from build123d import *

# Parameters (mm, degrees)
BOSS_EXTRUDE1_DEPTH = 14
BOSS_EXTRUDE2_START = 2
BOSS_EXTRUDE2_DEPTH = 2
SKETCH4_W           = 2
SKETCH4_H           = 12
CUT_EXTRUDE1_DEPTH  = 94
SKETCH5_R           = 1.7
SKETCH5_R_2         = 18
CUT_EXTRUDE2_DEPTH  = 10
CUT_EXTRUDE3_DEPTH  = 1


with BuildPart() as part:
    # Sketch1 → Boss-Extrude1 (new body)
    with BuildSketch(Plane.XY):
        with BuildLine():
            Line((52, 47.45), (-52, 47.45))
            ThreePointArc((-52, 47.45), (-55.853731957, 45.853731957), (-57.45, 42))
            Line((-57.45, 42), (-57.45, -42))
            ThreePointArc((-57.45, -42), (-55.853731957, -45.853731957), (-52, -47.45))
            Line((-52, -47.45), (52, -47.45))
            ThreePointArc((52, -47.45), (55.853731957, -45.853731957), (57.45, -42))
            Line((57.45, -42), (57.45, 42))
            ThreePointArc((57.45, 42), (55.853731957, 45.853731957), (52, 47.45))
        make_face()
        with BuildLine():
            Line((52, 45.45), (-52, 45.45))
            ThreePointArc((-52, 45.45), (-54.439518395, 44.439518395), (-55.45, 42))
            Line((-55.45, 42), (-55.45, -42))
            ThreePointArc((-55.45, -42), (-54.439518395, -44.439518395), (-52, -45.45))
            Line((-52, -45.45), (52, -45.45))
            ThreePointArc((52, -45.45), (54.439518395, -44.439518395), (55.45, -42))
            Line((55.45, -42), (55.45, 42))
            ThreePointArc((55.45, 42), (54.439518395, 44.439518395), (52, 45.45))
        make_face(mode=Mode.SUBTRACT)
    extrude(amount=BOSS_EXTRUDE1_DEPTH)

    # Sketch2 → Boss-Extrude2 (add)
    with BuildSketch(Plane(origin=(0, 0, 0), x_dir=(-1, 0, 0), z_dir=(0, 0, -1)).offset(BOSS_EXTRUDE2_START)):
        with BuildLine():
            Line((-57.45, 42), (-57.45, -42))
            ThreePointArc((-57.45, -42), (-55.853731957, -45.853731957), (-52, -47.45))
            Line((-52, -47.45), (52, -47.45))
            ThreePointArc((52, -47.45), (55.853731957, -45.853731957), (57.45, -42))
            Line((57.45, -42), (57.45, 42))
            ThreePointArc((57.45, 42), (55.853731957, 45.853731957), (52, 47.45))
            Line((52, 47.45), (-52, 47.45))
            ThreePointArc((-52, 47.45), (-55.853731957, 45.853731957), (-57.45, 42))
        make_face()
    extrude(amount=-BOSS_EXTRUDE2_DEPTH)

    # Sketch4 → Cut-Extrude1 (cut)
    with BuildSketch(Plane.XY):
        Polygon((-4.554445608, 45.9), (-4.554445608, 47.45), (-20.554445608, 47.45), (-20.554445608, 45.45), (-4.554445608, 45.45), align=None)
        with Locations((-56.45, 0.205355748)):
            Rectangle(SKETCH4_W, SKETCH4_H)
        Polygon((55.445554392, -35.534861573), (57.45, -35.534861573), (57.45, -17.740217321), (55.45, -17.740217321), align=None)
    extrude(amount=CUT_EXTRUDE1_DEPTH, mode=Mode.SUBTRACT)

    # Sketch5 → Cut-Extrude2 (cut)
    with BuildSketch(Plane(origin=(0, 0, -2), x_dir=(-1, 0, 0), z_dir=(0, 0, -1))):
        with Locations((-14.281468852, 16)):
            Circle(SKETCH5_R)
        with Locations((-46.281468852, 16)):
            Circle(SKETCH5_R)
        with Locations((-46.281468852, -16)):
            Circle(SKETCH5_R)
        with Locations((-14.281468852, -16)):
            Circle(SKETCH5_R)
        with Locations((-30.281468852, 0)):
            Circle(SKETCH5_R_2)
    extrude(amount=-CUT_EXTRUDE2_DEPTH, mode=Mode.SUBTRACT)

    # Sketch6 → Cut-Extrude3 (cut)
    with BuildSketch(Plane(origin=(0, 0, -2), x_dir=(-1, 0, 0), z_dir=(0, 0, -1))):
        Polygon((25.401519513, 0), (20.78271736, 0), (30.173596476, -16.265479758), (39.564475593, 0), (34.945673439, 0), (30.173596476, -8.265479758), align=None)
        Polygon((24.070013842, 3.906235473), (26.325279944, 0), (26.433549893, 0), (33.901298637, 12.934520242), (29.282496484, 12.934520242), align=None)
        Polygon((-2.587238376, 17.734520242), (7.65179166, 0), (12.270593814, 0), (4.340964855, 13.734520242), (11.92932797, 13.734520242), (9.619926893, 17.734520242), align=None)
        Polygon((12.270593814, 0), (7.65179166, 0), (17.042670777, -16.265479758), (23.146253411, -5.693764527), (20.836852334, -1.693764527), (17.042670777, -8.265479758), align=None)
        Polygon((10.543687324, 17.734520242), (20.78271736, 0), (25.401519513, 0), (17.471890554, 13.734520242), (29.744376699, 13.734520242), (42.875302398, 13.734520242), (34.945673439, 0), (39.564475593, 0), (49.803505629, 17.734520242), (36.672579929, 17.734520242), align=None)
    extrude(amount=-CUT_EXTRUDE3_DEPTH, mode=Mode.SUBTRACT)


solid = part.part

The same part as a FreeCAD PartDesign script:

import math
import FreeCAD as App
import Part
import Sketcher
from FreeCAD import Vector
Q = App.Units.Quantity


def add_polygon(sketch, points):
    """Adds a closed chain of lines whose ends are joined by coincident constraints."""
    first, n = sketch.GeometryCount, len(points)
    for a, b in zip(points, points[1:] + points[:1]):
        sketch.addGeometry(Part.LineSegment(App.Vector(*a, 0), App.Vector(*b, 0)), False)
    for i in range(n):
        sketch.addConstraint(Sketcher.Constraint("Coincident", first + i, 2, first + (i + 1) % n, 1))

doc = App.newDocument("Part")
body = doc.addObject("PartDesign::Body", "Body")

sketch1 = body.newObject("Sketcher::SketchObject", "Sketch")
sketch1.AttachmentSupport = (doc.getObject("XY_Plane"), [""])
sketch1.MapMode = "FlatFace"
sketch1.addGeometry(Part.LineSegment(Vector(52, 47.45, 0), Vector(-52, 47.45, 0)), False)
sketch1.addGeometry(Part.ArcOfCircle(Part.Circle(Vector(-52, 42, 0), Vector(0, 0, 1), 5.45), math.radians(90), math.radians(180)), False)
sketch1.addGeometry(Part.LineSegment(Vector(-57.45, 42, 0), Vector(-57.45, -42, 0)), False)
sketch1.addGeometry(Part.ArcOfCircle(Part.Circle(Vector(-52, -42, 0), Vector(0, 0, 1), 5.45), math.radians(-180), math.radians(-90)), False)
sketch1.addGeometry(Part.LineSegment(Vector(-52, -47.45, 0), Vector(52, -47.45, 0)), False)
sketch1.addGeometry(Part.ArcOfCircle(Part.Circle(Vector(52, -42, 0), Vector(0, 0, 1), 5.45), math.radians(-90), math.radians(0)), False)
sketch1.addGeometry(Part.LineSegment(Vector(57.45, -42, 0), Vector(57.45, 42, 0)), False)
sketch1.addGeometry(Part.ArcOfCircle(Part.Circle(Vector(52, 42, 0), Vector(0, 0, 1), 5.45), math.radians(0), math.radians(90)), False)
sketch1.addGeometry(Part.LineSegment(Vector(-52, 45.45, 0), Vector(52, 45.45, 0)), False)
sketch1.addGeometry(Part.ArcOfCircle(Part.Circle(Vector(52, 42, 0), Vector(0, 0, 1), 3.45), math.radians(0), math.radians(90)), False)
sketch1.addGeometry(Part.LineSegment(Vector(55.45, 42, 0), Vector(55.45, -42, 0)), False)
sketch1.addGeometry(Part.ArcOfCircle(Part.Circle(Vector(52, -42, 0), Vector(0, 0, 1), 3.45), math.radians(-90), math.radians(0)), False)
sketch1.addGeometry(Part.LineSegment(Vector(52, -45.45, 0), Vector(-52, -45.45, 0)), False)
sketch1.addGeometry(Part.ArcOfCircle(Part.Circle(Vector(-52, -42, 0), Vector(0, 0, 1), 3.45), math.radians(180), math.radians(270)), False)
sketch1.addGeometry(Part.LineSegment(Vector(-55.45, -42, 0), Vector(-55.45, 42, 0)), False)
sketch1.addGeometry(Part.ArcOfCircle(Part.Circle(Vector(-52, 42, 0), Vector(0, 0, 1), 3.45), math.radians(90), math.radians(180)), False)
sketch1.addConstraint(Sketcher.Constraint("Tangent", 0, 2, 1, 1))
sketch1.addConstraint(Sketcher.Constraint("Tangent", 1, 2, 2, 1))
sketch1.addConstraint(Sketcher.Constraint("Tangent", 2, 2, 3, 1))
sketch1.addConstraint(Sketcher.Constraint("Tangent", 3, 2, 4, 1))
sketch1.addConstraint(Sketcher.Constraint("Tangent", 4, 2, 5, 1))
sketch1.addConstraint(Sketcher.Constraint("Tangent", 5, 2, 6, 1))
sketch1.addConstraint(Sketcher.Constraint("Tangent", 6, 2, 7, 1))
sketch1.addConstraint(Sketcher.Constraint("Tangent", 7, 2, 0, 1))
sketch1.addConstraint(Sketcher.Constraint("Tangent", 8, 2, 9, 2))
sketch1.addConstraint(Sketcher.Constraint("Tangent", 9, 1, 10, 1))
sketch1.addConstraint(Sketcher.Constraint("Tangent", 10, 2, 11, 2))
sketch1.addConstraint(Sketcher.Constraint("Tangent", 11, 1, 12, 1))
sketch1.addConstraint(Sketcher.Constraint("Tangent", 12, 2, 13, 2))
sketch1.addConstraint(Sketcher.Constraint("Tangent", 13, 1, 14, 1))
sketch1.addConstraint(Sketcher.Constraint("Tangent", 14, 2, 15, 2))
sketch1.addConstraint(Sketcher.Constraint("Tangent", 15, 1, 8, 1))
sketch1.addConstraint(Sketcher.Constraint("Horizontal", 0))
sketch1.addConstraint(Sketcher.Constraint("Vertical", 2))
sketch1.addConstraint(Sketcher.Constraint("Horizontal", 4))
sketch1.addConstraint(Sketcher.Constraint("Vertical", 6))
sketch1.addConstraint(Sketcher.Constraint("Horizontal", 8))
sketch1.addConstraint(Sketcher.Constraint("Vertical", 10))
sketch1.addConstraint(Sketcher.Constraint("Horizontal", 12))
sketch1.addConstraint(Sketcher.Constraint("Vertical", 14))
sketch1.addConstraint(Sketcher.Constraint("Coincident", 9, 3, 7, 3))
sketch1.addConstraint(Sketcher.Constraint("Coincident", 11, 3, 5, 3))
sketch1.addConstraint(Sketcher.Constraint("Coincident", 13, 3, 3, 3))
sketch1.addConstraint(Sketcher.Constraint("Equal", 1, 3))
sketch1.addConstraint(Sketcher.Constraint("Equal", 3, 5))
sketch1.addConstraint(Sketcher.Constraint("Equal", 5, 7))
sketch1.addConstraint(Sketcher.Constraint("Equal", 13, 15))
sketch1.addConstraint(Sketcher.Constraint("Symmetric", 1, 3, 5, 3, -1, 1))
sketch1.addConstraint(Sketcher.Constraint("DistanceX", 0, 2, 0, 1, Q("104 mm")))
sketch1.addConstraint(Sketcher.Constraint("DistanceY", 2, 2, 2, 1, Q("84 mm")))
sketch1.addConstraint(Sketcher.Constraint("Radius", 1, Q("5.45 mm")))
sketch1.addConstraint(Sketcher.Constraint("Radius", 9, Q("3.45 mm")))
pad1 = body.newObject("PartDesign::Pad", "Pad")
pad1.Profile = sketch1
pad1.Length = 14

sketch2 = body.newObject("Sketcher::SketchObject", "Sketch001")
sketch2.AttachmentSupport = (doc.getObject("XY_Plane"), [""])
sketch2.MapMode = "FlatFace"
sketch2.AttachmentOffset = App.Placement(Vector(0, 0, -2), App.Rotation())
sketch2.addGeometry(Part.LineSegment(Vector(57.45, 42, 0), Vector(57.45, -42, 0)), False)
sketch2.addGeometry(Part.ArcOfCircle(Part.Circle(Vector(52, -42, 0), Vector(0, 0, 1), 5.45), math.radians(-90), math.radians(0)), False)
sketch2.addGeometry(Part.LineSegment(Vector(52, -47.45, 0), Vector(-52, -47.45, 0)), False)
sketch2.addGeometry(Part.ArcOfCircle(Part.Circle(Vector(-52, -42, 0), Vector(0, 0, 1), 5.45), math.radians(-180), math.radians(-90)), False)
sketch2.addGeometry(Part.LineSegment(Vector(-57.45, -42, 0), Vector(-57.45, 42, 0)), False)
sketch2.addGeometry(Part.ArcOfCircle(Part.Circle(Vector(-52, 42, 0), Vector(0, 0, 1), 5.45), math.radians(90), math.radians(180)), False)
sketch2.addGeometry(Part.LineSegment(Vector(-52, 47.45, 0), Vector(52, 47.45, 0)), False)
sketch2.addGeometry(Part.ArcOfCircle(Part.Circle(Vector(52, 42, 0), Vector(0, 0, 1), 5.45), math.radians(0), math.radians(90)), False)
sketch2.addConstraint(Sketcher.Constraint("Tangent", 0, 2, 1, 2))
sketch2.addConstraint(Sketcher.Constraint("Tangent", 1, 1, 2, 1))
sketch2.addConstraint(Sketcher.Constraint("Tangent", 2, 2, 3, 2))
sketch2.addConstraint(Sketcher.Constraint("Tangent", 3, 1, 4, 1))
sketch2.addConstraint(Sketcher.Constraint("Tangent", 4, 2, 5, 2))
sketch2.addConstraint(Sketcher.Constraint("Tangent", 5, 1, 6, 1))
sketch2.addConstraint(Sketcher.Constraint("Tangent", 6, 2, 7, 2))
sketch2.addConstraint(Sketcher.Constraint("Tangent", 7, 1, 0, 1))
sketch2.addConstraint(Sketcher.Constraint("Vertical", 0))
sketch2.addConstraint(Sketcher.Constraint("Horizontal", 2))
sketch2.addConstraint(Sketcher.Constraint("Vertical", 4))
sketch2.addConstraint(Sketcher.Constraint("Horizontal", 6))
sketch2.addConstraint(Sketcher.Constraint("Equal", 1, 3))
sketch2.addConstraint(Sketcher.Constraint("Equal", 3, 5))
sketch2.addConstraint(Sketcher.Constraint("Equal", 5, 7))
sketch2.addConstraint(Sketcher.Constraint("Symmetric", 1, 3, 5, 3, -1, 1))
sketch2.addConstraint(Sketcher.Constraint("DistanceX", 2, 2, 2, 1, Q("104 mm")))
sketch2.addConstraint(Sketcher.Constraint("DistanceY", 0, 2, 0, 1, Q("84 mm")))
sketch2.addConstraint(Sketcher.Constraint("Radius", 1, Q("5.45 mm")))
pad2 = body.newObject("PartDesign::Pad", "Pad001")
pad2.Profile = sketch2
pad2.Length = 2

sketch3 = body.newObject("Sketcher::SketchObject", "Sketch002")
sketch3.AttachmentSupport = (doc.getObject("XY_Plane"), [""])
sketch3.MapMode = "FlatFace"
add_polygon(sketch3, [(-4.554446, 47.45), (-20.554446, 47.45), (-20.554446, 45.45), (-4.554446, 45.45)])
add_polygon(sketch3, [(-57.45, 6.205356), (-57.45, -5.794644), (-55.45, -5.794644), (-55.45, 6.205356)])
add_polygon(sketch3, [(55.445554, -35.534862), (57.45, -35.534862), (57.45, -17.740217), (55.45, -17.740217)])
sketch3.addConstraint(Sketcher.Constraint("Horizontal", 0))
sketch3.addConstraint(Sketcher.Constraint("Vertical", 1))
sketch3.addConstraint(Sketcher.Constraint("Horizontal", 2))
sketch3.addConstraint(Sketcher.Constraint("Vertical", 3))
sketch3.addConstraint(Sketcher.Constraint("Vertical", 4))
sketch3.addConstraint(Sketcher.Constraint("Horizontal", 5))
sketch3.addConstraint(Sketcher.Constraint("Vertical", 6))
sketch3.addConstraint(Sketcher.Constraint("Horizontal", 7))
sketch3.addConstraint(Sketcher.Constraint("Horizontal", 8))
sketch3.addConstraint(Sketcher.Constraint("Vertical", 9))
sketch3.addConstraint(Sketcher.Constraint("Horizontal", 10))
sketch3.addConstraint(Sketcher.Constraint("Equal", 7, 10))
sketch3.addConstraint(Sketcher.Constraint("Equal", 10, 1))
sketch3.addConstraint(Sketcher.Constraint("DistanceX", 0, 2, 0, 1, Q("16 mm")))
sketch3.addConstraint(Sketcher.Constraint("DistanceX", 5, 1, 5, 2, Q("2 mm")))
sketch3.addConstraint(Sketcher.Constraint("DistanceY", 4, 2, 4, 1, Q("12 mm")))
sketch3.addConstraint(Sketcher.Constraint("DistanceX", 2, 2, 11, 2, Q("60 mm")))
sketch3.addConstraint(Sketcher.Constraint("DistanceX", 5, 2, 8, 2, Q("112.9 mm")))
sketch3.addConstraint(Sketcher.Constraint("DistanceY", -1, 1, 0, 2, Q("47.45 mm")))
sketch3.addConstraint(Sketcher.Constraint("DistanceX", 4, 2, -1, 1, Q("57.45 mm")))
sketch3.addConstraint(Sketcher.Constraint("DistanceX", 8, 1, 8, 2, Q("2.004446 mm")))
sketch3.addConstraint(Sketcher.Constraint("DistanceY", 9, 1, 9, 2, Q("17.794644 mm")))
sketch3.addConstraint(Sketcher.Constraint("DistanceY", 8, 2, -1, 1, Q("35.534862 mm")))
sketch3.addConstraint(Sketcher.Constraint("DistanceY", 4, 2, -1, 1, Q("5.794644 mm")))
pocket1 = body.newObject("PartDesign::Pocket", "Pocket")
pocket1.Profile = sketch3
pocket1.Length = 94
pocket1.Reversed = True

sketch4 = body.newObject("Sketcher::SketchObject", "Sketch003")
sketch4.AttachmentSupport = (doc.getObject("XY_Plane"), [""])
sketch4.MapMode = "FlatFace"
sketch4.AttachmentOffset = App.Placement(Vector(0, 0, -2), App.Rotation())
sketch4.addGeometry(Part.Circle(Vector(14.281469, 16, 0), Vector(0, 0, 1), 1.7), False)
sketch4.addGeometry(Part.Circle(Vector(46.281469, 16, 0), Vector(0, 0, 1), 1.7), False)
sketch4.addGeometry(Part.Circle(Vector(46.281469, -16, 0), Vector(0, 0, 1), 1.7), False)
sketch4.addGeometry(Part.Circle(Vector(14.281469, -16, 0), Vector(0, 0, 1), 1.7), False)
sketch4.addGeometry(Part.Circle(Vector(30.281469, 0, 0), Vector(0, 0, 1), 18), False)
sketch4.addConstraint(Sketcher.Constraint("Equal", 0, 1))
sketch4.addConstraint(Sketcher.Constraint("Equal", 1, 2))
sketch4.addConstraint(Sketcher.Constraint("Equal", 2, 3))
sketch4.addConstraint(Sketcher.Constraint("Symmetric", 1, 3, 2, 3, -1))
sketch4.addConstraint(Sketcher.Constraint("Symmetric", 0, 3, 3, 3, -1))
sketch4.addConstraint(Sketcher.Constraint("PointOnObject", 4, 3, -1))
sketch4.addConstraint(Sketcher.Constraint("Horizontal", 0, 3, 1, 3))
sketch4.addConstraint(Sketcher.Constraint("Diameter", 4, Q("36 mm")))
sketch4.addConstraint(Sketcher.Constraint("Diameter", 0, Q("3.4 mm")))
sketch4.addConstraint(Sketcher.Constraint("DistanceY", -1, 1, 0, 3, Q("16 mm")))
sketch4.addConstraint(Sketcher.Constraint("DistanceX", 0, 3, 1, 3, Q("32 mm")))
sketch4.addConstraint(Sketcher.Constraint("DistanceX", 0, 3, 4, 3, Q("16 mm")))
sketch4.addConstraint(Sketcher.Constraint("DistanceX", -1, 1, 0, 3, Q("14.281469 mm")))
pocket2 = body.newObject("PartDesign::Pocket", "Pocket001")
pocket2.Profile = sketch4
pocket2.Length = 10
pocket2.Reversed = True

sketch5 = body.newObject("Sketcher::SketchObject", "Sketch004")
sketch5.AttachmentSupport = (doc.getObject("XY_Plane"), [""])
sketch5.MapMode = "FlatFace"
sketch5.AttachmentOffset = App.Placement(Vector(0, 0, -2), App.Rotation())
add_polygon(sketch5, [(-20.782717, 0), (-30.173596, -16.26548), (-39.564476, 0), (-49.803506, 17.73452), (-10.543687, 17.73452)])
add_polygon(sketch5, [(-34.945673, 0), (-30.173596, -8.26548), (-25.40152, 0), (-17.471891, 13.73452), (-42.875302, 13.73452)])
add_polygon(sketch5, [(-24.070014, 3.906235), (-26.32528, 0), (-26.43355, 0), (-33.901299, 12.93452), (-29.282496, 12.93452)])
add_polygon(sketch5, [(2.587238, 17.73452), (-7.651792, 0), (-17.042671, -16.26548), (-23.146253, -5.693765), (-20.836852, -1.693765), (-17.042671, -8.26548), (-12.270594, 0), (-4.340965, 13.73452), (-11.929328, 13.73452), (-9.619927, 17.73452)])
sketch5.addConstraint(Sketcher.Constraint("Horizontal", 3))
sketch5.addConstraint(Sketcher.Constraint("Horizontal", 8))
sketch5.addConstraint(Sketcher.Constraint("Horizontal", 11))
sketch5.addConstraint(Sketcher.Constraint("Horizontal", 13))
sketch5.addConstraint(Sketcher.Constraint("Horizontal", 22))
sketch5.addConstraint(Sketcher.Constraint("Horizontal", 24))
sketch5.addConstraint(Sketcher.Constraint("PointOnObject", 1, 2, -1))
sketch5.addConstraint(Sketcher.Constraint("PointOnObject", 4, 2, -1))
sketch5.addConstraint(Sketcher.Constraint("PointOnObject", 6, 2, -1))
sketch5.addConstraint(Sketcher.Constraint("PointOnObject", 9, 2, -1))
sketch5.addConstraint(Sketcher.Constraint("PointOnObject", 10, 2, -1))
sketch5.addConstraint(Sketcher.Constraint("PointOnObject", 15, 2, -1))
sketch5.addConstraint(Sketcher.Constraint("PointOnObject", 20, 2, -1))
sketch5.addConstraint(Sketcher.Constraint("Parallel", 1, 2))
sketch5.addConstraint(Sketcher.Constraint("Parallel", 0, 4))
sketch5.addConstraint(Sketcher.Constraint("Parallel", 2, 5))
sketch5.addConstraint(Sketcher.Constraint("Parallel", 4, 6))
sketch5.addConstraint(Sketcher.Constraint("Parallel", 6, 7))
sketch5.addConstraint(Sketcher.Constraint("Parallel", 5, 9))
sketch5.addConstraint(Sketcher.Constraint("Parallel", 7, 10))
sketch5.addConstraint(Sketcher.Constraint("Parallel", 9, 12))
sketch5.addConstraint(Sketcher.Constraint("Parallel", 12, 14))
sketch5.addConstraint(Sketcher.Constraint("Parallel", 10, 15))
sketch5.addConstraint(Sketcher.Constraint("Parallel", 15, 16))
sketch5.addConstraint(Sketcher.Constraint("Parallel", 14, 17))
sketch5.addConstraint(Sketcher.Constraint("Parallel", 16, 18))
sketch5.addConstraint(Sketcher.Constraint("Parallel", 17, 19))
sketch5.addConstraint(Sketcher.Constraint("Parallel", 18, 20))
sketch5.addConstraint(Sketcher.Constraint("Parallel", 20, 21))
sketch5.addConstraint(Sketcher.Constraint("Parallel", 21, 23))
sketch5.addConstraint(Sketcher.Constraint("Horizontal", 0, 2, 16, 2))
sketch5.addConstraint(Sketcher.Constraint("Horizontal", 5, 2, 19, 2))
sketch5.addConstraint(Sketcher.Constraint("Horizontal", 8, 2, 21, 2))
sketch5.addConstraint(Sketcher.Constraint("Horizontal", 3, 2, 23, 2))
sketch5.addConstraint(Sketcher.Constraint("Vertical", 0, 2, 5, 2))
sketch5.addConstraint(Sketcher.Constraint("Vertical", 16, 2, 19, 2))
sketch5.addConstraint(Sketcher.Constraint("Equal", 0, 1))
sketch5.addConstraint(Sketcher.Constraint("Equal", 18, 23))
sketch5.addConstraint(Sketcher.Constraint("Angle", 0, Q("-120 deg")))
sketch5.addConstraint(Sketcher.Constraint("DistanceY", 0, 2, 2, 2, Q("34 mm")))
sketch5.addConstraint(Sketcher.Constraint("DistanceY", 0, 2, 5, 2, Q("8 mm")))
sketch5.addConstraint(Sketcher.Constraint("DistanceY", 12, 2, 8, 2, Q("0.8 mm")))
sketch5.addConstraint(Sketcher.Constraint("DistanceX", 11, 2, 11, 1, Q("0.10827 mm")))
sketch5.addConstraint(Sketcher.Constraint("DistanceX", 12, 2, -1, 1, Q("33.901299 mm")))
sketch5.addConstraint(Sketcher.Constraint("DistanceX", 7, 2, 15, 2, Q("9.820099 mm")))
sketch5.addConstraint(Sketcher.Constraint("Distance", 0, Q("18.781758 mm")))
sketch5.addConstraint(Sketcher.Constraint("DistanceX", 13, 1, 13, 2, Q("4.618802 mm")))
sketch5.addConstraint(Sketcher.Constraint("DistanceX", 22, 2, 22, 1, Q("7.588363 mm")))
sketch5.addConstraint(Sketcher.Constraint("DistanceX", 6, 2, -1, 1, Q("25.40152 mm")))
sketch5.addConstraint(Sketcher.Constraint("DistanceX", 18, 2, 19, 2, Q("3.794182 mm")))
pocket3 = body.newObject("PartDesign::Pocket", "Pocket002")
pocket3.Profile = sketch5
pocket3.Length = 1
pocket3.Reversed = True

doc.recompute()
